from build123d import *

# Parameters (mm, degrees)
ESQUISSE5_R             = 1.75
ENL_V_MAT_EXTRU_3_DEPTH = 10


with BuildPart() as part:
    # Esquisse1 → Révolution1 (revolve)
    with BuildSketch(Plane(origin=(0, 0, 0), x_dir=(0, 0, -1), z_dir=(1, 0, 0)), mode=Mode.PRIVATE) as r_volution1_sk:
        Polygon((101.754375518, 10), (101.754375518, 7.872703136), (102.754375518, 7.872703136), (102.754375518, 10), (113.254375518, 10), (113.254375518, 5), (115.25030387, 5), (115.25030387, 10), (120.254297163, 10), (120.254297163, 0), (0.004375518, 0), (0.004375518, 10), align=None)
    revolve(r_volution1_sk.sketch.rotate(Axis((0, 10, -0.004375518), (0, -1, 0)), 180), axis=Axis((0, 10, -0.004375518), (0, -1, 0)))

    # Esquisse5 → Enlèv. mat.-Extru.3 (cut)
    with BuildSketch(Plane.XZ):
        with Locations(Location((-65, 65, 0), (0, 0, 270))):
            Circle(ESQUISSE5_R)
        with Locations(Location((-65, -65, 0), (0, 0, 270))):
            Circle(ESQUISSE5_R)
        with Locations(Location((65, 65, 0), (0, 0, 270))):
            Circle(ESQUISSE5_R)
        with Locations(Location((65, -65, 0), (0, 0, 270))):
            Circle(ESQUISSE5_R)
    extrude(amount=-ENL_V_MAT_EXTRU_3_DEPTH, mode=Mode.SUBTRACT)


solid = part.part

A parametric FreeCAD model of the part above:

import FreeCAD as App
import Part
import Sketcher

V = App.Vector
Q = App.Units.Quantity


def add_polygon(sketch, points):
    """Adds a closed chain of lines whose ends are joined by coincident constraints."""
    first, n = sketch.GeometryCount, len(points)
    for a, b in zip(points, points[1:] + points[:1]):
        sketch.addGeometry(Part.LineSegment(App.Vector(*a, 0), App.Vector(*b, 0)), False)
    for i in range(n):
        sketch.addConstraint(Sketcher.Constraint("Coincident", first + i, 2, first + (i + 1) % n, 1))

doc = App.newDocument("Part")
body = doc.addObject("PartDesign::Body", "Body")

sketch1 = doc.addObject("Sketcher::SketchObject", "Sketch")
body.addObject(sketch1)
sketch1.AttachmentSupport = (doc.YZ_Plane, [""])
sketch1.MapMode = "FlatFace"
add_polygon(sketch1, [(7.9, -101.8), (10, -101.8), (10, 0), (0, 0), (0, -120.3), (10, -120.3), (10, -115.3), (5, -115.3), (5, -113.3), (10, -113.3), (10, -102.8), (7.9, -102.8)])
sketch1.addGeometry(Part.LineSegment(V(10, 0, 0), V(0, 0, 0)), True)
sketch1.addConstraint(Sketcher.Constraint("Horizontal", 0))
sketch1.addConstraint(Sketcher.Constraint("Vertical", 1))
sketch1.addConstraint(Sketcher.Constraint("Horizontal", 2))
sketch1.addConstraint(Sketcher.Constraint("Vertical", 3))
sketch1.addConstraint(Sketcher.Constraint("Horizontal", 4))
sketch1.addConstraint(Sketcher.Constraint("Vertical", 5))
sketch1.addConstraint(Sketcher.Constraint("Horizontal", 6))
sketch1.addConstraint(Sketcher.Constraint("Vertical", 7))
sketch1.addConstraint(Sketcher.Constraint("Horizontal", 8))
sketch1.addConstraint(Sketcher.Constraint("Vertical", 9))
sketch1.addConstraint(Sketcher.Constraint("Horizontal", 10))
sketch1.addConstraint(Sketcher.Constraint("Vertical", 11))
sketch1.addConstraint(Sketcher.Constraint("Horizontal", 12))
sketch1.addConstraint(Sketcher.Constraint("Coincident", 12, 1, 1, 2))
sketch1.addConstraint(Sketcher.Constraint("PointOnObject", 2, 2, -2))
sketch1.addConstraint(Sketcher.Constraint("PointOnObject", 12, 2, -2))
sketch1.addConstraint(Sketcher.Constraint("Vertical", 1, 2, 4, 2))
sketch1.addConstraint(Sketcher.Constraint("Vertical", 5, 2, 8, 2))
sketch1.addConstraint(Sketcher.Constraint("DistanceX", 2, 2, 2, 1, Q("10 mm")))
sketch1.addConstraint(Sketcher.Constraint("DistanceX", 6, 2, 6, 1, Q("5 mm")))
sketch1.addConstraint(Sketcher.Constraint("DistanceY", 11, 1, 11, 2, Q("1 mm")))
sketch1.addConstraint(Sketcher.Constraint("DistanceY", 9, 1, 9, 2, Q("10.5 mm")))
sketch1.addConstraint(Sketcher.Constraint("DistanceY", 1, 1, 1, 2, Q("101.75 mm")))
sketch1.addConstraint(Sketcher.Constraint("DistanceY", 3, 2, 3, 1, Q("120.249922 mm")))
sketch1.addConstraint(Sketcher.Constraint("DistanceY", 7, 1, 7, 2, Q("1.995928 mm")))
sketch1.addConstraint(Sketcher.Constraint("DistanceX", 0, 1, 0, 2, Q("2.127297 mm")))
sketch1.addConstraint(Sketcher.Constraint("DistanceY", 0, 2, -1, 1, Q("101.754376 mm")))
revolution = doc.addObject("PartDesign::Revolution", "Revolution")
body.addObject(revolution)
revolution.Profile = sketch1
revolution.ReferenceAxis = (sketch1, ["Axis0"])
revolution.Angle = 360

sketch2 = doc.addObject("Sketcher::SketchObject", "Sketch001")
body.addObject(sketch2)
sketch2.AttachmentSupport = (doc.XZ_Plane, [""])
sketch2.MapMode = "FlatFace"
sketch2.addGeometry(Part.Circle(V(-65, 65, 0), V(0, 0, 1), 1.8), False)
sketch2.addGeometry(Part.Circle(V(-65, -65, 0), V(0, 0, 1), 1.8), False)
sketch2.addGeometry(Part.Circle(V(65, 65, 0), V(0, 0, 1), 1.8), False)
sketch2.addGeometry(Part.Circle(V(65, -65, 0), V(0, 0, 1), 1.8), False)
sketch2.addConstraint(Sketcher.Constraint("Equal", 0, 1))
sketch2.addConstraint(Sketcher.Constraint("Equal", 1, 2))
sketch2.addConstraint(Sketcher.Constraint("Equal", 2, 3))
sketch2.addConstraint(Sketcher.Constraint("Symmetric", 1, 3, 2, 3, -1, 1))
sketch2.addConstraint(Sketcher.Constraint("Symmetric", 0, 3, 3, 3, -1, 1))
sketch2.addConstraint(Sketcher.Constraint("Symmetric", 0, 3, 2, 3, -2))
sketch2.addConstraint(Sketcher.Constraint("Diameter", 0, Q("3.5 mm")))
sketch2.addConstraint(Sketcher.Constraint("DistanceX", 0, 3, -1, 1, Q("65 mm")))
sketch2.addConstraint(Sketcher.Constraint("DistanceY", -1, 1, 0, 3, Q("65 mm")))
pocket1 = doc.addObject("PartDesign::Pocket", "Pocket")
body.addObject(pocket1)
pocket1.Profile = sketch2
pocket1.Length = 10

doc.recompute()
